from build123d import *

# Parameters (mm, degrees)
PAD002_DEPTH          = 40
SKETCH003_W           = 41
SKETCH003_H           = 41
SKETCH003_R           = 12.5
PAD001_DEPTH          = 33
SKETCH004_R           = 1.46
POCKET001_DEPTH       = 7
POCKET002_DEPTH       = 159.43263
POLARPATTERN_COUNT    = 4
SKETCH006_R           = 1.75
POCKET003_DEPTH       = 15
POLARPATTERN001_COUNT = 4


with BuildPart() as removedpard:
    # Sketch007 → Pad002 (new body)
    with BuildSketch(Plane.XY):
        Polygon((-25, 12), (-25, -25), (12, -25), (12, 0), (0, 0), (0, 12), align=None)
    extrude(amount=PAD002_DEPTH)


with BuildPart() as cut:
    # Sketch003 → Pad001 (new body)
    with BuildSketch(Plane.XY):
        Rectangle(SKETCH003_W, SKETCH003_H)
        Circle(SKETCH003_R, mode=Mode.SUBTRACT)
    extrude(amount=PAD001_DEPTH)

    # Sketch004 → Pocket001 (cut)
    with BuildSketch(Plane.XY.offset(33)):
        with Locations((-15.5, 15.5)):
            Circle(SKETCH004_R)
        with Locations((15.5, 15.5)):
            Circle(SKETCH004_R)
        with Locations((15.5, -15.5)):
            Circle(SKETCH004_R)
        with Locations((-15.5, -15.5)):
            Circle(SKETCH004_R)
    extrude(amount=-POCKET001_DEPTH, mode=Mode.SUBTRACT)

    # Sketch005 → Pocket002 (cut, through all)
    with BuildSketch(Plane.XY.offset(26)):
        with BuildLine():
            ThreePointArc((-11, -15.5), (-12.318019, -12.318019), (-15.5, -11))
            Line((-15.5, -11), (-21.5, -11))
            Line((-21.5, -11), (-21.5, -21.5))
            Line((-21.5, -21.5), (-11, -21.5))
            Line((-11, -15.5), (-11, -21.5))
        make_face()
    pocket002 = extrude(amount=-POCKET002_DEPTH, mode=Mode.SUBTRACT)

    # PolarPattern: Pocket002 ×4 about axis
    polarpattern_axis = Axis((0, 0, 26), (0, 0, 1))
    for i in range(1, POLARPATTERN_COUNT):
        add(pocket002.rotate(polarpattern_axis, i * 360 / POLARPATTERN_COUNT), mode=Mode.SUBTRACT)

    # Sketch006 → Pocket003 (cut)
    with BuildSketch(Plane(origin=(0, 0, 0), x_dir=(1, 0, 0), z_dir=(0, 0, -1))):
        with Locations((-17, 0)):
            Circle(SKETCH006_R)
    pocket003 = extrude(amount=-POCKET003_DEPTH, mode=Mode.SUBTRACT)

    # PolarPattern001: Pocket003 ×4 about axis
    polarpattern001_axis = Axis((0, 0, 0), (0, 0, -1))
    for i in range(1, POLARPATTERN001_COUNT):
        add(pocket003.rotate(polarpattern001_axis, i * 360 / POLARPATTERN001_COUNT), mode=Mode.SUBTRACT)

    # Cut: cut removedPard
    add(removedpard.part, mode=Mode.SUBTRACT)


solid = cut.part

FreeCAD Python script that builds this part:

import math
import FreeCAD as App
import Part
import Sketcher
from FreeCAD import Vector


def add_polygon(sketch, points):
    """Adds a closed chain of lines whose ends are joined by coincident constraints."""
    first, n = sketch.GeometryCount, len(points)
    for a, b in zip(points, points[1:] + points[:1]):
        sketch.addGeometry(Part.LineSegment(App.Vector(*a, 0), App.Vector(*b, 0)), False)
    for i in range(n):
        sketch.addConstraint(Sketcher.Constraint("Coincident", first + i, 2, first + (i + 1) % n, 1))

doc = App.newDocument("Part")
body = doc.addObject("PartDesign::Body", "Body")

# Sketch on XY plane
sketch1 = doc.addObject("Sketcher::SketchObject", "Sketch")
body.addObject(sketch1)
sketch1.AttachmentSupport = (doc.XY_Plane, [""])
sketch1.MapMode = "FlatFace"
add_polygon(sketch1, [(-25, 12), (-25, -25), (12, -25), (12, 0), (0, 0), (0, 12)])  # lines 0-5
sketch1.addConstraint([
    Sketcher.Constraint("Vertical", 0),
    Sketcher.Constraint("Horizontal", 1),
    Sketcher.Constraint("Vertical", 2),
    Sketcher.Constraint("Horizontal", 3),
    Sketcher.Constraint("Vertical", 4),
    Sketcher.Constraint("Horizontal", 5),
    Sketcher.Constraint("Coincident", 3, 2, -1, 1),
    Sketcher.Constraint("Equal", 1, 0),
    Sketcher.Constraint("Equal", 5, 2),
    Sketcher.Constraint("DistanceX", 1, 1, 1, 2, 37.0),
    Sketcher.Constraint("DistanceX", 3, 2, 3, 1, 12.0),
])
pad1 = doc.addObject("PartDesign::Pad", "Pad")
body.addObject(pad1)
pad1.Profile = sketch1
pad1.Length = 40
body2 = doc.addObject("PartDesign::Body", "Body001")

# Sketch on XY plane
sketch2 = doc.addObject("Sketcher::SketchObject", "Sketch001")
body2.addObject(sketch2)
sketch2.AttachmentSupport = (doc.getObject("XY_Plane001"), [""])
sketch2.MapMode = "FlatFace"
add_polygon(sketch2, [(-20, 20), (-20, -20), (20, -20), (20, 20)])  # lines 0-3
sketch2.addGeometry(Part.Circle(Vector(0, 0, 0), Vector(0, 0, 1), 12), False)  # 4
sketch2.addConstraint([
    Sketcher.Constraint("Vertical", 0),
    Sketcher.Constraint("Horizontal", 1),
    Sketcher.Constraint("Vertical", 2),
    Sketcher.Constraint("Horizontal", 3),
    Sketcher.Constraint("Coincident", 4, 3, -1, 1),
    Sketcher.Constraint("Symmetric", 0, 2, 2, 2, -1, 1),
    Sketcher.Constraint("Equal", 3, 0),
    Sketcher.Constraint("Diameter", 4, 25.0),
    Sketcher.Constraint("DistanceX", 1, 1, 1, 2, 41.0),
])
pad2 = doc.addObject("PartDesign::Pad", "Pad001")
body2.addObject(pad2)
pad2.Profile = sketch2
pad2.Length = 33

# Sketch on XY plane
sketch3 = doc.addObject("Sketcher::SketchObject", "Sketch002")
body2.addObject(sketch3)
sketch3.AttachmentSupport = (doc.getObject("XY_Plane001"), [""])
sketch3.MapMode = "FlatFace"
sketch3.AttachmentOffset = App.Placement(Vector(0, 0, 33), App.Rotation())
sketch3.addGeometry([
    Part.Circle(Vector(-15.5, 15.5, 0), Vector(0, 0, 1), 1.5),
    Part.Circle(Vector(15.5, 15.5, 0), Vector(0, 0, 1), 1.5),
    Part.Circle(Vector(15.5, -15.5, 0), Vector(0, 0, 1), 1.5),
    Part.Circle(Vector(-15.5, -15.5, 0), Vector(0, 0, 1), 1.5),
], False)
sketch3.addConstraint([
    Sketcher.Constraint("Equal", 0, 1),
    Sketcher.Constraint("Equal", 1, 2),
    Sketcher.Constraint("Equal", 2, 3),
    Sketcher.Constraint("Symmetric", 0, 3, 2, 3, -1, 1),
    Sketcher.Constraint("Symmetric", 1, 3, 3, 3, -1, 1),
    Sketcher.Constraint("Symmetric", 0, 3, 1, 3, -2),
    Sketcher.Constraint("Diameter", 0, 2.92),
    Sketcher.Constraint("DistanceX", 0, 3, 1, 3, 31.0),
    Sketcher.Constraint("DistanceY", 2, 3, 1, 3, 31.0),
])
pocket1 = doc.addObject("PartDesign::Pocket", "Pocket")
body2.addObject(pocket1)
pocket1.Profile = sketch3
pocket1.Length = 7

# Sketch on XY plane
sketch4 = doc.addObject("Sketcher::SketchObject", "Sketch003")
body2.addObject(sketch4)
sketch4.AttachmentSupport = (doc.getObject("XY_Plane001"), [""])
sketch4.MapMode = "FlatFace"
sketch4.AttachmentOffset = App.Placement(Vector(0, 0, 26), App.Rotation())
sketch4.addGeometry([
    Part.ArcOfCircle(Part.Circle(Vector(-15.5, -15.5, 0), Vector(0, 0, 1), 4.5), math.radians(0), math.radians(90)),  # 0
    Part.LineSegment(Vector(-15.5, -11, 0), Vector(-21.5, -11, 0)),  # 1
    Part.LineSegment(Vector(-21.5, -11, 0), Vector(-21.5, -21.5, 0)),  # 2
    Part.LineSegment(Vector(-21.5, -21.5, 0), Vector(-11, -21.5, 0)),  # 3
    Part.LineSegment(Vector(-11, -21.5, 0), Vector(-11, -15.5, 0)),  # 4
], False)
sketch4.addConstraint([
    Sketcher.Constraint("Tangent", 0, 2, 1, 1),
    Sketcher.Constraint("Coincident", 1, 2, 2, 1),
    Sketcher.Constraint("Coincident", 2, 2, 3, 1),
    Sketcher.Constraint("Coincident", 3, 2, 4, 1),
    Sketcher.Constraint("Tangent", 4, 2, 0, 1),
    Sketcher.Constraint("Horizontal", 1),
    Sketcher.Constraint("Vertical", 2),
    Sketcher.Constraint("Horizontal", 3),
    Sketcher.Constraint("Vertical", 4),
    Sketcher.Constraint("Equal", 3, 2),
    Sketcher.Constraint("Radius", 0, 4.499998),
    Sketcher.Constraint("DistanceX", 1, 2, 1, 1, 6.0),
    Sketcher.Constraint("DistanceY", 0, 2, -1, 1, 11.0),
    Sketcher.Constraint("DistanceX", 3, 2, -1, 1, 11.0),
])
pocket2 = doc.addObject("PartDesign::Pocket", "Pocket001")
body2.addObject(pocket2)
pocket2.Profile = sketch4
pocket2.Type = "ThroughAll"
doc.recompute()

polarpattern = doc.addObject("PartDesign::PolarPattern", "PolarPattern")
body2.addObject(polarpattern)
polarpattern.Originals = [pocket2]
polarpattern.Axis = (doc.getObject("Z_Axis001"), [""])
polarpattern.Angle = 360
polarpattern.Occurrences = 4
body2.Tip = polarpattern

# Sketch on XY plane
sketch5 = doc.addObject("Sketcher::SketchObject", "Sketch004")
body2.addObject(sketch5)
sketch5.AttachmentSupport = (doc.getObject("XY_Plane001"), [""])
sketch5.MapMode = "FlatFace"
sketch5.addGeometry(Part.Circle(Vector(-17, 0, 0), Vector(0, 0, 1), 1.8), False)
sketch5.addConstraint([
    Sketcher.Constraint("PointOnObject", 0, 3, -1),
    Sketcher.Constraint("Diameter", 0, 3.5),
    Sketcher.Constraint("DistanceX", 0, 3, -1, 1, 17.0),
])
pocket3 = doc.addObject("PartDesign::Pocket", "Pocket002")
body2.addObject(pocket3)
pocket3.Profile = sketch5
pocket3.Length = 15
pocket3.Reversed = True
doc.recompute()

polarpattern2 = doc.addObject("PartDesign::PolarPattern", "PolarPattern001")
body2.addObject(polarpattern2)
polarpattern2.Originals = [pocket3]
polarpattern2.Axis = (doc.getObject("Z_Axis001"), [""])
polarpattern2.Angle = 360
polarpattern2.Occurrences = 4
body2.Tip = polarpattern2
doc.recompute()

boolean = doc.addObject("PartDesign::Boolean", "Boolean")
body2.addObject(boolean)
boolean.Type = "Cut"
boolean.addObjects([body])

doc.recompute()
